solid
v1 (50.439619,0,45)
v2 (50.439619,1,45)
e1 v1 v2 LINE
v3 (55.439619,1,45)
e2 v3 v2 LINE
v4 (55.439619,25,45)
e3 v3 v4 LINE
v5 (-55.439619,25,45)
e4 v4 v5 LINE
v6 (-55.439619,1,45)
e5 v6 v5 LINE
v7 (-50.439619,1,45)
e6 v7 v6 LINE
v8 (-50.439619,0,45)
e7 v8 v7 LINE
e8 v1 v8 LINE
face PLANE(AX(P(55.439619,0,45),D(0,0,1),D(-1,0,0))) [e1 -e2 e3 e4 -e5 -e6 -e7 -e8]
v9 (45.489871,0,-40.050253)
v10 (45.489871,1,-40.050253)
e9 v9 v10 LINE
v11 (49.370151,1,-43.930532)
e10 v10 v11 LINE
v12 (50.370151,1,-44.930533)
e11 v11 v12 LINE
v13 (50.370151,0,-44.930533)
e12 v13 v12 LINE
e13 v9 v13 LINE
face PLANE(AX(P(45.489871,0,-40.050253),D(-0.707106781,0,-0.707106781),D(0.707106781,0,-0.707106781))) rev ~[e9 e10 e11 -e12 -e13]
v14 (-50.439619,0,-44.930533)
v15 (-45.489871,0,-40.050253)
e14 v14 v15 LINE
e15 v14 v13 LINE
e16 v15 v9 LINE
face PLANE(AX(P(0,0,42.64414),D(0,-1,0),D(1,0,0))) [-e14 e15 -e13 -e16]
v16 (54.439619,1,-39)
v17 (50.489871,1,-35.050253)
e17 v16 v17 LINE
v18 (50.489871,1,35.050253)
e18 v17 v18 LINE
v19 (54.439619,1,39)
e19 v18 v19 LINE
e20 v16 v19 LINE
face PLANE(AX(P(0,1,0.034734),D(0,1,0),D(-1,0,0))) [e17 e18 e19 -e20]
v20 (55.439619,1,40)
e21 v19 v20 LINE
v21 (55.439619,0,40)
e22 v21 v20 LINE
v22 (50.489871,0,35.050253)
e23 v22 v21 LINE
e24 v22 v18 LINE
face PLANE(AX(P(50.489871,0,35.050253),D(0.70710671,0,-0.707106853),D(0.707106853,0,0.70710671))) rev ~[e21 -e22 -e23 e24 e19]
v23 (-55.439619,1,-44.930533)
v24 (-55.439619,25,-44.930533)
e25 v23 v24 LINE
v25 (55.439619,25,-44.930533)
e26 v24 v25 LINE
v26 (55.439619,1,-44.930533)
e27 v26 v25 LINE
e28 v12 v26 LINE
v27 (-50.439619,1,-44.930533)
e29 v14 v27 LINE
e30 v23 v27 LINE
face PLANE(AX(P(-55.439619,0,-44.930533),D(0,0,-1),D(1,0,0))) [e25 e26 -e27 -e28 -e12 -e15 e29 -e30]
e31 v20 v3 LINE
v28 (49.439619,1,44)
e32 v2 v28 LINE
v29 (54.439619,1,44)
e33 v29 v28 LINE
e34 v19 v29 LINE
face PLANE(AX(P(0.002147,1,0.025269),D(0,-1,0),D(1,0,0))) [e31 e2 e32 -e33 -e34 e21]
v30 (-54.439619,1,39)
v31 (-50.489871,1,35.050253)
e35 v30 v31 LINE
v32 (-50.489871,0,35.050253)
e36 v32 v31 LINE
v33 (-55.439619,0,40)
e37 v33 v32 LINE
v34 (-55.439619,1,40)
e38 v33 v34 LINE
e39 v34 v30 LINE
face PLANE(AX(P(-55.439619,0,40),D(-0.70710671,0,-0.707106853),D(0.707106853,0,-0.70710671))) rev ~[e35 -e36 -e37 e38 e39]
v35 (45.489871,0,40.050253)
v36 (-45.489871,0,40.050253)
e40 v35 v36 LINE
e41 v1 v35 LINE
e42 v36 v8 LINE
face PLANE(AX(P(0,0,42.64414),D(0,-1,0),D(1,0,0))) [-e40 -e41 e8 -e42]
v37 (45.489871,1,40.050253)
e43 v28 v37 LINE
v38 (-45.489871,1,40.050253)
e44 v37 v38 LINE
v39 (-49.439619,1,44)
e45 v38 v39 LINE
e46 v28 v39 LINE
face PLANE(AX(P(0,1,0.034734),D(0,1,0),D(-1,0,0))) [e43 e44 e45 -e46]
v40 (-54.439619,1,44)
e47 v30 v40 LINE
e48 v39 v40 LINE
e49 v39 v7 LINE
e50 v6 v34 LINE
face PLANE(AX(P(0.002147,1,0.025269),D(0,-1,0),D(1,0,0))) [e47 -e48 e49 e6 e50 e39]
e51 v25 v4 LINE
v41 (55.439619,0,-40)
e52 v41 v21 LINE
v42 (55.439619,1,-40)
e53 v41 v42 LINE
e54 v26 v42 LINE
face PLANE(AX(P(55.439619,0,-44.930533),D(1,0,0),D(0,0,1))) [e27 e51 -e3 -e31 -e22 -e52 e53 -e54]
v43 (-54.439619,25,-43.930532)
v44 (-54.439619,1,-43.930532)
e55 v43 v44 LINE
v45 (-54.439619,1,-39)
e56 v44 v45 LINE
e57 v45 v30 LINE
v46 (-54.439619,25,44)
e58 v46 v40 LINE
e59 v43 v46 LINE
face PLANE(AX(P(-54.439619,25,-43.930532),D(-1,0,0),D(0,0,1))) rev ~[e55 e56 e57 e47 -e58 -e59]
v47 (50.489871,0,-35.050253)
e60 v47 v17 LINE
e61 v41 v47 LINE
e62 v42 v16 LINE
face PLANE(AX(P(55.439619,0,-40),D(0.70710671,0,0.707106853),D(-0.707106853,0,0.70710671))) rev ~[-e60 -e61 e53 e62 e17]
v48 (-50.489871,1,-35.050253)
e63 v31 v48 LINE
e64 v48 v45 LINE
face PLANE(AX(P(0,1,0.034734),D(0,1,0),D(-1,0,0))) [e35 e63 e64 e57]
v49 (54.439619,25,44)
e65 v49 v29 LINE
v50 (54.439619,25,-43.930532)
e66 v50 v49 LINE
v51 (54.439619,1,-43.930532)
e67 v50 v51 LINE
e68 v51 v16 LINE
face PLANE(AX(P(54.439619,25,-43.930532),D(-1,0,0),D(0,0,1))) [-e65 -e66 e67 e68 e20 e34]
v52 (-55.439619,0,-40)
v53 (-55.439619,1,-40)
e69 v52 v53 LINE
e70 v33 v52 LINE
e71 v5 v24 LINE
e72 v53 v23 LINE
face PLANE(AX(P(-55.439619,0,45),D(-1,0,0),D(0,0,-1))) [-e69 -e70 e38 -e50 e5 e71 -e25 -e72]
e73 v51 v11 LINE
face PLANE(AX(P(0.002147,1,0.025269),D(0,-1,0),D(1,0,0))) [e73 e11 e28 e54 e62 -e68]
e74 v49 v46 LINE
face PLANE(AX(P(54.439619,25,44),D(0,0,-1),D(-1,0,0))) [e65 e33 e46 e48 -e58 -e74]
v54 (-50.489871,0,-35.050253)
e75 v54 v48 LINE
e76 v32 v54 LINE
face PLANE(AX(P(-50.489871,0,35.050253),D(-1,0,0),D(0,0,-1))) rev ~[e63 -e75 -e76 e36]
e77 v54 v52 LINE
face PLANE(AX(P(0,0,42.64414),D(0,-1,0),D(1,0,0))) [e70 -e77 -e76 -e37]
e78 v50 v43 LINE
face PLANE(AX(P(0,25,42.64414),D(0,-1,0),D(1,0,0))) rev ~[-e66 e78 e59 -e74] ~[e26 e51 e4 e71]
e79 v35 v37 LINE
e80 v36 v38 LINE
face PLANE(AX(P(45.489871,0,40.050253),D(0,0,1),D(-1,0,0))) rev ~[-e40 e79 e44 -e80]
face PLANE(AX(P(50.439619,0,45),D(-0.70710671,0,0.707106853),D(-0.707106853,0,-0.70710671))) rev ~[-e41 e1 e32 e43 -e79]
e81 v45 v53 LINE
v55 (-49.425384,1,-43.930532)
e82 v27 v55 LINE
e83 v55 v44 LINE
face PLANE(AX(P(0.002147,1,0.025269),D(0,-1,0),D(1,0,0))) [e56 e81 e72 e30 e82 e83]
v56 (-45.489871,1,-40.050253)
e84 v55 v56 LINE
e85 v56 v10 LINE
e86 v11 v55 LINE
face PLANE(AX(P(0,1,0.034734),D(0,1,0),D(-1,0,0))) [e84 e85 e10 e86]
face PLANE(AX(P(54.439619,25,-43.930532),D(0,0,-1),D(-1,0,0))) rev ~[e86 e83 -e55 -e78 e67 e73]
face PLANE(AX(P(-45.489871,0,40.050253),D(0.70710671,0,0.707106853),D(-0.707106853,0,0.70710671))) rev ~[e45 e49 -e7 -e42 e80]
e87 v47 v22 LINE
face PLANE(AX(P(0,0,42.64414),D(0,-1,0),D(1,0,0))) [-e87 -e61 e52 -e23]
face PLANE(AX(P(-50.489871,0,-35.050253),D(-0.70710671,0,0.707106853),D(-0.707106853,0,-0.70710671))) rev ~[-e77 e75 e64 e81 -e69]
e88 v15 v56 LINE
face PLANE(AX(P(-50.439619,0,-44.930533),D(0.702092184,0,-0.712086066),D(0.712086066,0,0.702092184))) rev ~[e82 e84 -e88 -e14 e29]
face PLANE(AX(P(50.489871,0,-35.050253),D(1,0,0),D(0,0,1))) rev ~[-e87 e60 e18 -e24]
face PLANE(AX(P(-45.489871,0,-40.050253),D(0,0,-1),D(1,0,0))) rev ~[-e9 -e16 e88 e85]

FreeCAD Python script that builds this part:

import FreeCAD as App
import Part
import Sketcher


def add_polygon(sketch, points):
    """Adds a closed chain of lines whose ends are joined by coincident constraints."""
    first, n = sketch.GeometryCount, len(points)
    for a, b in zip(points, points[1:] + points[:1]):
        sketch.addGeometry(Part.LineSegment(App.Vector(*a, 0), App.Vector(*b, 0)), False)
    for i in range(n):
        sketch.addConstraint(Sketcher.Constraint("Coincident", first + i, 2, first + (i + 1) % n, 1))

doc = App.newDocument("Part")
params = doc.addObject("Spreadsheet::Sheet", "Params")
for row, (alias, value) in enumerate([
    ("pad1_length", "25 mm"),
    ("sketch2_width", "5 mm"),
    ("sketch2_length", "7 mm"),
    ("pocket1_length", "1 mm"),
    ("pocket2_length", "24 mm"),
], start=1):
    params.set(f"A{row}", alias)
    params.set(f"B{row}", "=" + value)
    params.setAlias(f"B{row}", alias)

body = doc.addObject("PartDesign::Body", "Body")

# Sketch on XZ plane
sketch1 = doc.addObject("Sketcher::SketchObject", "Sketch")
body.addObject(sketch1)
sketch1.AttachmentSupport = (doc.XZ_Plane, [""])
sketch1.MapMode = "FlatFace"
add_polygon(sketch1, [(-55, 45), (-55, -45), (55, -45), (55, 45)])  # lines 0-3
sketch1.addConstraint(Sketcher.Constraint("Vertical", 0))
sketch1.addConstraint(Sketcher.Constraint("Horizontal", 1))
sketch1.addConstraint(Sketcher.Constraint("Vertical", 2))
sketch1.addConstraint(Sketcher.Constraint("Horizontal", 3))
sketch1.addConstraint(Sketcher.Constraint("DistanceY", -1, 1, 2, 2, 45.0))
sketch1.addConstraint(Sketcher.Constraint("DistanceX", 1, 1, 1, 2, 110.879238))
sketch1.addConstraint(Sketcher.Constraint("DistanceY", 0, 2, 0, 1, 89.930533))
sketch1.addConstraint(Sketcher.Constraint("DistanceX", 0, 2, -1, 1, 55.439619))
pad1 = doc.addObject("PartDesign::Pad", "Pad")
body.addObject(pad1)
pad1.Profile = sketch1
pad1.setExpression("Length", "Params.pad1_length")
pad1.Reversed = True

# Sketch on XZ plane
sketch2 = doc.addObject("Sketcher::SketchObject", "Sketch001")
body.addObject(sketch2)
sketch2.AttachmentSupport = (doc.XZ_Plane, [""])
sketch2.MapMode = "FlatFace"
add_polygon(sketch2, [(-55.4, 45), (-55.4, 40), (-50.5, 35.1), (-50.5, -35.1), (-55.4, -40), (-55.4, -44.9), (-50.4, -44.9), (-45.5, -40.1), (45.5, -40.1), (50.4, -44.9), (55.4, -44.9), (55.4, -40), (50.5, -35.1), (50.5, 35.1), (55.4, 40), (55.4, 45), (50.4, 45), (45.5, 40.1), (-45.5, 40.1), (-50.4, 45)])  # lines 0-19
sketch2.addConstraint(Sketcher.Constraint("Vertical", 0))
sketch2.addConstraint(Sketcher.Constraint("Vertical", 2))
sketch2.addConstraint(Sketcher.Constraint("Vertical", 4))
sketch2.addConstraint(Sketcher.Constraint("Horizontal", 5))
sketch2.addConstraint(Sketcher.Constraint("Horizontal", 7))
sketch2.addConstraint(Sketcher.Constraint("Horizontal", 9))
sketch2.addConstraint(Sketcher.Constraint("Vertical", 10))
sketch2.addConstraint(Sketcher.Constraint("Vertical", 12))
sketch2.addConstraint(Sketcher.Constraint("Vertical", 14))
sketch2.addConstraint(Sketcher.Constraint("Horizontal", 15))
sketch2.addConstraint(Sketcher.Constraint("Horizontal", 17))
sketch2.addConstraint(Sketcher.Constraint("Horizontal", 19))
sketch2.addConstraint(Sketcher.Constraint("Symmetric", 0, 2, 10, 2, -1, 1))
sketch2.addConstraint(Sketcher.Constraint("Symmetric", 1, 2, 11, 2, -1, 1))
sketch2.addConstraint(Sketcher.Constraint("Symmetric", 3, 2, 13, 2, -1, 1))
sketch2.addConstraint(Sketcher.Constraint("Symmetric", 6, 2, 16, 2, -1, 1))
sketch2.addConstraint(Sketcher.Constraint("Symmetric", 4, 2, 9, 2, -2))
sketch2.addConstraint(Sketcher.Constraint("Symmetric", 15, 2, 18, 2, -2))
sketch2.addConstraint(Sketcher.Constraint("Perpendicular", 1, 3))
sketch2.addConstraint(Sketcher.Constraint("Perpendicular", 3, 8))
sketch2.addConstraint(Sketcher.Constraint("Perpendicular", 11, 13))
sketch2.addConstraint(Sketcher.Constraint("Parallel", 13, 16))
sketch2.addConstraint(Sketcher.Constraint("Perpendicular", 16, 18))
sketch2.addConstraint(Sketcher.Constraint("Horizontal", 3, 2, 10, 2))
sketch2.addConstraint(Sketcher.Constraint("Horizontal", 2, 2, 11, 2))
sketch2.addConstraint(Sketcher.Constraint("Vertical", 7, 2, 16, 2))
sketch2.addConstraint(Sketcher.Constraint("Vertical", 5, 2, 18, 2))
sketch2.addConstraint(Sketcher.Constraint("Equal", 19, 0))
sketch2.addConstraint(Sketcher.Constraint("Equal", 13, 16))
sketch2.addConstraint(Sketcher.Constraint("DistanceX", 5, 1, 5, 2, 5.0))
sketch2.addConstraint(Sketcher.Constraint("Distance", 1, 7.0))
sketch2.addConstraint(Sketcher.Constraint("DistanceY", -1, 1, 0, 2, 40.0))
sketch2.addConstraint(Sketcher.Constraint("DistanceX", 7, 1, 7, 2, 90.979742))
sketch2.addConstraint(Sketcher.Constraint("DistanceX", 9, 1, 9, 2, 5.069468))
sketch2.setExpression("Constraints[49]", "Params.sketch2_width")
sketch2.setExpression("Constraints[50]", "Params.sketch2_length")
pocket1 = doc.addObject("PartDesign::Pocket", "Pocket")
body.addObject(pocket1)
pocket1.Profile = sketch2
pocket1.setExpression("Length", "Params.pocket1_length")

# Sketch on XZ plane
sketch3 = doc.addObject("Sketcher::SketchObject", "Sketch002")
body.addObject(sketch3)
sketch3.AttachmentSupport = (doc.XZ_Plane, [""])
sketch3.MapMode = "FlatFace"
sketch3.AttachmentOffset = App.Placement(App.Vector(0, 0, -25), App.Rotation())
add_polygon(sketch3, [(54, 44), (54, -44), (-54, -44), (-54, 44)])  # lines 0-3
sketch3.addConstraint(Sketcher.Constraint("Vertical", 0))
sketch3.addConstraint(Sketcher.Constraint("Horizontal", 1))
sketch3.addConstraint(Sketcher.Constraint("Vertical", 2))
sketch3.addConstraint(Sketcher.Constraint("Horizontal", 3))
sketch3.addConstraint(Sketcher.Constraint("DistanceY", -1, 1, 2, 2, 44.0))
sketch3.addConstraint(Sketcher.Constraint("DistanceX", 1, 2, 1, 1, 108.879238))
sketch3.addConstraint(Sketcher.Constraint("DistanceY", 0, 2, 0, 1, 87.930533))
sketch3.addConstraint(Sketcher.Constraint("DistanceX", -1, 1, 0, 2, 54.439619))
pocket2 = doc.addObject("PartDesign::Pocket", "Pocket001")
body.addObject(pocket2)
pocket2.Profile = sketch3
pocket2.setExpression("Length", "Params.pocket2_length")
pocket2.Reversed = True

doc.recompute()
